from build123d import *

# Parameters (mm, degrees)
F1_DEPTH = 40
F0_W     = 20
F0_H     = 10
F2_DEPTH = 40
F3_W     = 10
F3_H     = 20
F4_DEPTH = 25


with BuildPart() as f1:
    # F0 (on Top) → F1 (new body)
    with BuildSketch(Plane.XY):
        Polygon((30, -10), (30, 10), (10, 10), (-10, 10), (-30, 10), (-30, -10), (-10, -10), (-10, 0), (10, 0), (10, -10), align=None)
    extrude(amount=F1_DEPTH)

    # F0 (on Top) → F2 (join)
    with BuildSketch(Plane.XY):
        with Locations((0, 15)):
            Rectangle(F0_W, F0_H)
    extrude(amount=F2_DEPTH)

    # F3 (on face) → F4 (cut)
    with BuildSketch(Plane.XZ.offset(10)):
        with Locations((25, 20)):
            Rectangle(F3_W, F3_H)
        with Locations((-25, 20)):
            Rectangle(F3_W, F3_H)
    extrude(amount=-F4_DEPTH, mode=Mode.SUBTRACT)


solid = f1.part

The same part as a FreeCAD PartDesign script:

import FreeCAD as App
import Part
import Sketcher

V = App.Vector
Q = App.Units.Quantity


def add_polygon(sketch, points):
    """Adds a closed chain of lines whose ends are joined by coincident constraints."""
    first, n = sketch.GeometryCount, len(points)
    for a, b in zip(points, points[1:] + points[:1]):
        sketch.addGeometry(Part.LineSegment(App.Vector(*a, 0), App.Vector(*b, 0)), False)
    for i in range(n):
        sketch.addConstraint(Sketcher.Constraint("Coincident", first + i, 2, first + (i + 1) % n, 1))

doc = App.newDocument("Part")
params = doc.addObject("Spreadsheet::Sheet", "Params")
for row, (alias, value) in enumerate([
    ("sketch1_width", "60 mm"),
    ("pad1_length", "40 mm"),
    ("sketch2_width", "20 mm"),
    ("sketch2_height", "10 mm"),
    ("pad2_length", "40 mm"),
    ("sketch3_width", "10 mm"),
    ("sketch3_height", "20 mm"),
    ("pocket1_length", "25 mm"),
], start=1):
    params.set(f"A{row}", alias)
    params.set(f"B{row}", "=" + value)
    params.setAlias(f"B{row}", alias)

body = doc.addObject("PartDesign::Body", "Body")

sketch1 = doc.addObject("Sketcher::SketchObject", "Sketch")
body.addObject(sketch1)
sketch1.AttachmentSupport = (doc.XY_Plane, [""])
sketch1.MapMode = "FlatFace"
add_polygon(sketch1, [(30, -10), (30, 10), (-30, 10), (-30, -10), (-10, -10), (-10, 0), (10, 0), (10, -10)])
sketch1.addConstraint([
    Sketcher.Constraint("Vertical", 0),
    Sketcher.Constraint("Horizontal", 1),
    Sketcher.Constraint("Vertical", 2),
    Sketcher.Constraint("Horizontal", 3),
    Sketcher.Constraint("Vertical", 4),
    Sketcher.Constraint("Horizontal", 5),
    Sketcher.Constraint("Vertical", 6),
    Sketcher.Constraint("Horizontal", 7),
    Sketcher.Constraint("Symmetric", 0, 2, 2, 2, -1, 1),
    Sketcher.Constraint("Symmetric", 4, 2, 5, 2, -1, 1),
    Sketcher.Constraint("Horizontal", 3, 2, 6, 2),
    Sketcher.Constraint("Equal", 3, 5),
    Sketcher.Constraint("Equal", 7, 0),
    Sketcher.Constraint("DistanceX", 1, 2, 1, 1, Q("60 mm")),
])
sketch1.setExpression("Constraints[21]", "Params.sketch1_width")
pad1 = doc.addObject("PartDesign::Pad", "Pad")
body.addObject(pad1)
pad1.Profile = sketch1
pad1.setExpression("Length", "Params.pad1_length")

sketch2 = doc.addObject("Sketcher::SketchObject", "Sketch001")
body.addObject(sketch2)
sketch2.AttachmentSupport = (doc.XY_Plane, [""])
sketch2.MapMode = "FlatFace"
add_polygon(sketch2, [(-10, 20), (-10, 10), (10, 10), (10, 20)])
sketch2.addConstraint([
    Sketcher.Constraint("Vertical", 0),
    Sketcher.Constraint("Horizontal", 1),
    Sketcher.Constraint("Vertical", 2),
    Sketcher.Constraint("Horizontal", 3),
    Sketcher.Constraint("DistanceX", 1, 1, 1, 2, Q("20 mm")),
    Sketcher.Constraint("DistanceY", 0, 2, 0, 1, Q("10 mm")),
    Sketcher.Constraint("DistanceX", 0, 2, -1, 1, Q("10 mm")),
    Sketcher.Constraint("DistanceY", -1, 1, 0, 2, Q("10 mm")),
])
sketch2.setExpression("Constraints[8]", "Params.sketch2_width")
sketch2.setExpression("Constraints[9]", "Params.sketch2_height")
pad2 = doc.addObject("PartDesign::Pad", "Pad001")
body.addObject(pad2)
pad2.Profile = sketch2
pad2.setExpression("Length", "Params.pad2_length")

sketch3 = doc.addObject("Sketcher::SketchObject", "Sketch002")
body.addObject(sketch3)
sketch3.AttachmentSupport = (doc.XZ_Plane, [""])
sketch3.MapMode = "FlatFace"
sketch3.AttachmentOffset = App.Placement(V(0, 0, 10), App.Rotation())
add_polygon(sketch3, [(20, 30), (20, 10), (30, 10), (30, 30)])
add_polygon(sketch3, [(-30, 30), (-30, 10), (-20, 10), (-20, 30)])
sketch3.addConstraint([
    Sketcher.Constraint("Vertical", 0),
    Sketcher.Constraint("Horizontal", 1),
    Sketcher.Constraint("Vertical", 2),
    Sketcher.Constraint("Horizontal", 3),
    Sketcher.Constraint("Vertical", 4),
    Sketcher.Constraint("Horizontal", 5),
    Sketcher.Constraint("Vertical", 6),
    Sketcher.Constraint("Horizontal", 7),
    Sketcher.Constraint("Symmetric", 1, 2, 4, 2, -2),
    Sketcher.Constraint("Symmetric", 3, 2, 6, 2, -2),
    Sketcher.Constraint("DistanceX", 1, 1, 1, 2, Q("10 mm")),
    Sketcher.Constraint("DistanceY", 0, 2, 0, 1, Q("20 mm")),
    Sketcher.Constraint("DistanceX", -1, 1, 0, 2, Q("20 mm")),
    Sketcher.Constraint("DistanceY", -1, 1, 0, 2, Q("10 mm")),
])
sketch3.setExpression("Constraints[18]", "Params.sketch3_width")
sketch3.setExpression("Constraints[19]", "Params.sketch3_height")
pocket1 = doc.addObject("PartDesign::Pocket", "Pocket")
body.addObject(pocket1)
pocket1.Profile = sketch3
pocket1.setExpression("Length", "Params.pocket1_length")

doc.recompute()
